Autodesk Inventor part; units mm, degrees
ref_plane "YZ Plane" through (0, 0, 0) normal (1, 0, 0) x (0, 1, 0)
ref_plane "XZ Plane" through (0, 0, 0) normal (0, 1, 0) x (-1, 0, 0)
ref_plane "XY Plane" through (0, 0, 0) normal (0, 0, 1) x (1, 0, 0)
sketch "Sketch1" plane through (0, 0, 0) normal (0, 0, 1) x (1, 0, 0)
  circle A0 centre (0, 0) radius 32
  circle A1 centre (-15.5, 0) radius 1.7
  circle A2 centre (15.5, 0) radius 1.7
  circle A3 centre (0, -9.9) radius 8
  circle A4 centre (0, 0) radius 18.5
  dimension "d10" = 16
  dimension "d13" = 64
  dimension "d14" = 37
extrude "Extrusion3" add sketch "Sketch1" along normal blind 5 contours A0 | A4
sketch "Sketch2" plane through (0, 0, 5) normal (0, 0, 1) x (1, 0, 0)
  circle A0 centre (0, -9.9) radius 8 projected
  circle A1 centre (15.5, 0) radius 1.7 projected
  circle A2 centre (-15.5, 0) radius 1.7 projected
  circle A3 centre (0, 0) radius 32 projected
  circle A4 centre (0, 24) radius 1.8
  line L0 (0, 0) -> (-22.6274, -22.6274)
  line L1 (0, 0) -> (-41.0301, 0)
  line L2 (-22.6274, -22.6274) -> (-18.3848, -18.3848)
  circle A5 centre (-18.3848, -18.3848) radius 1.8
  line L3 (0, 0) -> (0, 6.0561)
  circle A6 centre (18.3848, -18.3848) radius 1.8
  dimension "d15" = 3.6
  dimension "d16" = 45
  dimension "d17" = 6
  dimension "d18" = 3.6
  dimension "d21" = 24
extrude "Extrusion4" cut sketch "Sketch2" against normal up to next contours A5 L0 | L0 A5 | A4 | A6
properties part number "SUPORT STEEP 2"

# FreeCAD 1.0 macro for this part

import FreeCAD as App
import Part
import Sketcher
Q = App.Units.Quantity

doc = App.newDocument("Part")
body = doc.addObject("PartDesign::Body", "Body")

sketch1 = doc.addObject("Sketcher::SketchObject", "Sketch")
body.addObject(sketch1)
sketch1.AttachmentSupport = (doc.XY_Plane, [""])
sketch1.MapMode = "FlatFace"
sketch1.addGeometry(Part.Circle(App.Vector(0, 0, 0), App.Vector(0, 0, 1), 32), False)
sketch1.addGeometry(Part.Circle(App.Vector(15.5, 0, 0), App.Vector(0, 0, 1), 1.7), False)
sketch1.addGeometry(Part.Circle(App.Vector(0, -9.9, 0), App.Vector(0, 0, 1), 8), False)
sketch1.addGeometry(Part.Circle(App.Vector(-15.5, 0, 0), App.Vector(0, 0, 1), 1.7), False)
sketch1.addConstraint(Sketcher.Constraint("Coincident", 0, 3, -1, 1))
sketch1.addConstraint(Sketcher.Constraint("Equal", 1, 3))
sketch1.addConstraint(Sketcher.Constraint("Symmetric", 1, 3, 3, 3, -1, 1))
sketch1.addConstraint(Sketcher.Constraint("PointOnObject", 1, 3, -1))
sketch1.addConstraint(Sketcher.Constraint("PointOnObject", 2, 3, -2))
sketch1.addConstraint(Sketcher.Constraint("Diameter", 0, Q("64 mm")))
sketch1.addConstraint(Sketcher.Constraint("Diameter", 2, Q("16 mm")))
sketch1.addConstraint(Sketcher.Constraint("Diameter", 1, Q("3.4 mm")))
sketch1.addConstraint(Sketcher.Constraint("DistanceX", 3, 3, 1, 3, Q("31 mm")))
sketch1.addConstraint(Sketcher.Constraint("DistanceY", 2, 3, -1, 1, Q("9.9 mm")))
pad1 = doc.addObject("PartDesign::Pad", "Pad")
body.addObject(pad1)
pad1.Profile = sketch1
pad1.Length = 5

sketch2 = doc.addObject("Sketcher::SketchObject", "Sketch001")
body.addObject(sketch2)
sketch2.AttachmentSupport = (doc.XY_Plane, [""])
sketch2.MapMode = "FlatFace"
sketch2.AttachmentOffset = App.Placement(App.Vector(0, 0, 5), App.Rotation())
sketch2.addGeometry(Part.Circle(App.Vector(-18.4, -18.4, 0), App.Vector(0, 0, 1), 1.8), False)
sketch2.addGeometry(Part.Circle(App.Vector(0, 24, 0), App.Vector(0, 0, 1), 1.8), False)
sketch2.addGeometry(Part.Circle(App.Vector(18.4, -18.4, 0), App.Vector(0, 0, 1), 1.8), False)
sketch2.addConstraint(Sketcher.Constraint("Equal", 0, 1))
sketch2.addConstraint(Sketcher.Constraint("Equal", 1, 2))
sketch2.addConstraint(Sketcher.Constraint("Symmetric", 0, 3, 2, 3, -2))
sketch2.addConstraint(Sketcher.Constraint("PointOnObject", 1, 3, -2))
sketch2.addConstraint(Sketcher.Constraint("Diameter", 0, Q("3.6 mm")))
sketch2.addConstraint(Sketcher.Constraint("DistanceY", -1, 1, 1, 3, Q("24 mm")))
sketch2.addConstraint(Sketcher.Constraint("DistanceX", 0, 3, -1, 1, Q("18.3848 mm")))
sketch2.addConstraint(Sketcher.Constraint("DistanceY", 0, 3, -1, 1, Q("18.3848 mm")))
pocket1 = doc.addObject("PartDesign::Pocket", "Pocket")
body.addObject(pocket1)
pocket1.Profile = sketch2
pocket1.Length = 5

doc.recompute()
